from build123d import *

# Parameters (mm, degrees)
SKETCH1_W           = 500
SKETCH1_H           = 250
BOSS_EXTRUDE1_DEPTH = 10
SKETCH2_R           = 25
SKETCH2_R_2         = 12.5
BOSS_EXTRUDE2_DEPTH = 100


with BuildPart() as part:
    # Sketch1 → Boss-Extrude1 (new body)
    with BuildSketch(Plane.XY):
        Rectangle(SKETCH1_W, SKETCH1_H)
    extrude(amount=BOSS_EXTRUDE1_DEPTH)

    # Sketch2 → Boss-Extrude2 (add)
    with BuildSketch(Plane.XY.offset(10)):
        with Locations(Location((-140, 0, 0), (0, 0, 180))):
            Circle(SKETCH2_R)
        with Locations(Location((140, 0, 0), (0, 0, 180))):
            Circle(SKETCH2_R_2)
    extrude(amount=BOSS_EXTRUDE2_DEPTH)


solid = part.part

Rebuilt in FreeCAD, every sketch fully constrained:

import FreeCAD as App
import Part
import Sketcher

V = App.Vector

doc = App.newDocument("Part")
params = doc.addObject("Spreadsheet::Sheet", "Params")
for row, (alias, value) in enumerate([
    ("sketch1_width", "500 mm"),
    ("sketch1_height", "250 mm"),
    ("pad1_length", "10 mm"),
    ("sketch2_diameter", "50 mm"),
    ("sketch2_diameter2", "25 mm"),
    ("pad2_length", "100 mm"),
], start=1):
    params.set(f"A{row}", alias)
    params.set(f"B{row}", "=" + value)
    params.setAlias(f"B{row}", alias)

body = doc.addObject("PartDesign::Body", "Body")

# Sketch on XY plane
sketch1 = body.newObject("Sketcher::SketchObject", "Sketch")
sketch1.AttachmentSupport = (doc.getObject("XY_Plane"), [""])
sketch1.MapMode = "FlatFace"
sketch1.addGeometry([
    Part.LineSegment(V(-250, 125, 0), V(-250, -125, 0)),
    Part.LineSegment(V(-250, -125, 0), V(250, -125, 0)),
    Part.LineSegment(V(250, -125, 0), V(250, 125, 0)),
    Part.LineSegment(V(250, 125, 0), V(-250, 125, 0)),
], False)
sketch1.addConstraint([
    Sketcher.Constraint("Coincident", 0, 2, 1, 1),
    Sketcher.Constraint("Coincident", 1, 2, 2, 1),
    Sketcher.Constraint("Coincident", 2, 2, 3, 1),
    Sketcher.Constraint("Coincident", 3, 2, 0, 1),
    Sketcher.Constraint("Vertical", 0),
    Sketcher.Constraint("Horizontal", 1),
    Sketcher.Constraint("Vertical", 2),
    Sketcher.Constraint("Horizontal", 3),
    Sketcher.Constraint("Symmetric", 0, 2, 2, 2, -1, 1),
    Sketcher.Constraint("DistanceX", 1, 1, 1, 2, 500.0),
    Sketcher.Constraint("DistanceY", 0, 2, 0, 1, 250.0),
])
sketch1.setExpression("Constraints[9]", "Params.sketch1_width")
sketch1.setExpression("Constraints[10]", "Params.sketch1_height")
pad1 = body.newObject("PartDesign::Pad", "Pad")
pad1.Profile = sketch1
pad1.setExpression("Length", "Params.pad1_length")

# Sketch on XY plane
sketch2 = body.newObject("Sketcher::SketchObject", "Sketch001")
sketch2.AttachmentSupport = (doc.getObject("XY_Plane"), [""])
sketch2.MapMode = "FlatFace"
sketch2.AttachmentOffset = App.Placement(V(0, 0, 10), App.Rotation())
sketch2.addGeometry([
    Part.Circle(V(-140, 0, 0), V(0, 0, 1), 25),
    Part.Circle(V(140, 0, 0), V(0, 0, 1), 12),
], False)
sketch2.addConstraint([
    Sketcher.Constraint("Symmetric", 0, 3, 1, 3, -1, 1),
    Sketcher.Constraint("PointOnObject", 0, 3, -1),
    Sketcher.Constraint("Diameter", 0, 50.0),
    Sketcher.Constraint("Diameter", 1, 25.0),
    Sketcher.Constraint("DistanceX", 0, 3, -1, 1, 140.0),
])
sketch2.setExpression("Constraints[2]", "Params.sketch2_diameter")
sketch2.setExpression("Constraints[3]", "Params.sketch2_diameter2")
pad2 = body.newObject("PartDesign::Pad", "Pad001")
pad2.Profile = sketch2
pad2.setExpression("Length", "Params.pad2_length")

doc.recompute()
